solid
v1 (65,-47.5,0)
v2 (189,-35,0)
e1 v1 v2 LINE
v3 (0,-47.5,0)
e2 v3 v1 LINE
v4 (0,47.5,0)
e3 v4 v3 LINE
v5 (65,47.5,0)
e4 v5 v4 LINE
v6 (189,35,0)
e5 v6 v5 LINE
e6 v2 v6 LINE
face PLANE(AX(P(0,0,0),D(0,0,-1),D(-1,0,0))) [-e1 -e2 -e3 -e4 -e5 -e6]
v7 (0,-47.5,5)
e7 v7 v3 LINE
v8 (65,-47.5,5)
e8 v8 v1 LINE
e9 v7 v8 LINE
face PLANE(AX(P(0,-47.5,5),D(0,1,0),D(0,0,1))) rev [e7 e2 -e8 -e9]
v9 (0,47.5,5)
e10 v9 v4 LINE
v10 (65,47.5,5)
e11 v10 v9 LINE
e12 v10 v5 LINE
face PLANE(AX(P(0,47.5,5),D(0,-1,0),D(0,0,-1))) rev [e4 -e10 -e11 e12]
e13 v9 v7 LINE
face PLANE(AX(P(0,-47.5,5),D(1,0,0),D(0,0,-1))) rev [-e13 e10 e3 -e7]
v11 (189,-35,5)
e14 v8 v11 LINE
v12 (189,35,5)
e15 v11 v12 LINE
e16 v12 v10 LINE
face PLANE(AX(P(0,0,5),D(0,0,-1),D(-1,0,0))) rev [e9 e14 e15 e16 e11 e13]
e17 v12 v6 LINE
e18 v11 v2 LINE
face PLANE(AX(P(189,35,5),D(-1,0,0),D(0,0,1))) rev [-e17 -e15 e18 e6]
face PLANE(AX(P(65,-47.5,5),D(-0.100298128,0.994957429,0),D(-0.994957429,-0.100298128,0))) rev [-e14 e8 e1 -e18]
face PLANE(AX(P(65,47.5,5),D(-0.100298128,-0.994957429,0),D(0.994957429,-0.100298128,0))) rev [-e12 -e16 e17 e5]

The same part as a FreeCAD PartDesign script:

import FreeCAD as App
import Part
import Sketcher

V = App.Vector


def add_polygon(sketch, points):
    """Adds a closed chain of lines whose ends are joined by coincident constraints."""
    first, n = sketch.GeometryCount, len(points)
    for a, b in zip(points, points[1:] + points[:1]):
        sketch.addGeometry(Part.LineSegment(App.Vector(*a, 0), App.Vector(*b, 0)), False)
    for i in range(n):
        sketch.addConstraint(Sketcher.Constraint("Coincident", first + i, 2, first + (i + 1) % n, 1))

doc = App.newDocument("Part")
body = doc.addObject("PartDesign::Body", "Body")

sketch1 = doc.addObject("Sketcher::SketchObject", "Sketch")
body.addObject(sketch1)
sketch1.AttachmentSupport = (doc.XY_Plane, [""])
sketch1.MapMode = "FlatFace"
add_polygon(sketch1, [(0, 48), (0, -48), (65, -48), (189, -35), (189, 35), (65, 48)])
sketch1.addConstraint([
    Sketcher.Constraint("Vertical", 0),
    Sketcher.Constraint("Horizontal", 1),
    Sketcher.Constraint("Vertical", 3),
    Sketcher.Constraint("Horizontal", 5),
    Sketcher.Constraint("Symmetric", 0, 2, 5, 2, -1, 1),
    Sketcher.Constraint("Vertical", 1, 2, 4, 2),
    Sketcher.Constraint("Equal", 2, 4),
    Sketcher.Constraint("DistanceX", 1, 1, 1, 2, 65.0),
    Sketcher.Constraint("DistanceY", 0, 2, 0, 1, 95.0),
    Sketcher.Constraint("DistanceY", 3, 1, 3, 2, 70.0),
    Sketcher.Constraint("DistanceX", -1, 1, 2, 2, 189.0),
])
pad1 = doc.addObject("PartDesign::Pad", "Pad")
body.addObject(pad1)
pad1.Profile = sketch1
pad1.Length = 5

doc.recompute()
